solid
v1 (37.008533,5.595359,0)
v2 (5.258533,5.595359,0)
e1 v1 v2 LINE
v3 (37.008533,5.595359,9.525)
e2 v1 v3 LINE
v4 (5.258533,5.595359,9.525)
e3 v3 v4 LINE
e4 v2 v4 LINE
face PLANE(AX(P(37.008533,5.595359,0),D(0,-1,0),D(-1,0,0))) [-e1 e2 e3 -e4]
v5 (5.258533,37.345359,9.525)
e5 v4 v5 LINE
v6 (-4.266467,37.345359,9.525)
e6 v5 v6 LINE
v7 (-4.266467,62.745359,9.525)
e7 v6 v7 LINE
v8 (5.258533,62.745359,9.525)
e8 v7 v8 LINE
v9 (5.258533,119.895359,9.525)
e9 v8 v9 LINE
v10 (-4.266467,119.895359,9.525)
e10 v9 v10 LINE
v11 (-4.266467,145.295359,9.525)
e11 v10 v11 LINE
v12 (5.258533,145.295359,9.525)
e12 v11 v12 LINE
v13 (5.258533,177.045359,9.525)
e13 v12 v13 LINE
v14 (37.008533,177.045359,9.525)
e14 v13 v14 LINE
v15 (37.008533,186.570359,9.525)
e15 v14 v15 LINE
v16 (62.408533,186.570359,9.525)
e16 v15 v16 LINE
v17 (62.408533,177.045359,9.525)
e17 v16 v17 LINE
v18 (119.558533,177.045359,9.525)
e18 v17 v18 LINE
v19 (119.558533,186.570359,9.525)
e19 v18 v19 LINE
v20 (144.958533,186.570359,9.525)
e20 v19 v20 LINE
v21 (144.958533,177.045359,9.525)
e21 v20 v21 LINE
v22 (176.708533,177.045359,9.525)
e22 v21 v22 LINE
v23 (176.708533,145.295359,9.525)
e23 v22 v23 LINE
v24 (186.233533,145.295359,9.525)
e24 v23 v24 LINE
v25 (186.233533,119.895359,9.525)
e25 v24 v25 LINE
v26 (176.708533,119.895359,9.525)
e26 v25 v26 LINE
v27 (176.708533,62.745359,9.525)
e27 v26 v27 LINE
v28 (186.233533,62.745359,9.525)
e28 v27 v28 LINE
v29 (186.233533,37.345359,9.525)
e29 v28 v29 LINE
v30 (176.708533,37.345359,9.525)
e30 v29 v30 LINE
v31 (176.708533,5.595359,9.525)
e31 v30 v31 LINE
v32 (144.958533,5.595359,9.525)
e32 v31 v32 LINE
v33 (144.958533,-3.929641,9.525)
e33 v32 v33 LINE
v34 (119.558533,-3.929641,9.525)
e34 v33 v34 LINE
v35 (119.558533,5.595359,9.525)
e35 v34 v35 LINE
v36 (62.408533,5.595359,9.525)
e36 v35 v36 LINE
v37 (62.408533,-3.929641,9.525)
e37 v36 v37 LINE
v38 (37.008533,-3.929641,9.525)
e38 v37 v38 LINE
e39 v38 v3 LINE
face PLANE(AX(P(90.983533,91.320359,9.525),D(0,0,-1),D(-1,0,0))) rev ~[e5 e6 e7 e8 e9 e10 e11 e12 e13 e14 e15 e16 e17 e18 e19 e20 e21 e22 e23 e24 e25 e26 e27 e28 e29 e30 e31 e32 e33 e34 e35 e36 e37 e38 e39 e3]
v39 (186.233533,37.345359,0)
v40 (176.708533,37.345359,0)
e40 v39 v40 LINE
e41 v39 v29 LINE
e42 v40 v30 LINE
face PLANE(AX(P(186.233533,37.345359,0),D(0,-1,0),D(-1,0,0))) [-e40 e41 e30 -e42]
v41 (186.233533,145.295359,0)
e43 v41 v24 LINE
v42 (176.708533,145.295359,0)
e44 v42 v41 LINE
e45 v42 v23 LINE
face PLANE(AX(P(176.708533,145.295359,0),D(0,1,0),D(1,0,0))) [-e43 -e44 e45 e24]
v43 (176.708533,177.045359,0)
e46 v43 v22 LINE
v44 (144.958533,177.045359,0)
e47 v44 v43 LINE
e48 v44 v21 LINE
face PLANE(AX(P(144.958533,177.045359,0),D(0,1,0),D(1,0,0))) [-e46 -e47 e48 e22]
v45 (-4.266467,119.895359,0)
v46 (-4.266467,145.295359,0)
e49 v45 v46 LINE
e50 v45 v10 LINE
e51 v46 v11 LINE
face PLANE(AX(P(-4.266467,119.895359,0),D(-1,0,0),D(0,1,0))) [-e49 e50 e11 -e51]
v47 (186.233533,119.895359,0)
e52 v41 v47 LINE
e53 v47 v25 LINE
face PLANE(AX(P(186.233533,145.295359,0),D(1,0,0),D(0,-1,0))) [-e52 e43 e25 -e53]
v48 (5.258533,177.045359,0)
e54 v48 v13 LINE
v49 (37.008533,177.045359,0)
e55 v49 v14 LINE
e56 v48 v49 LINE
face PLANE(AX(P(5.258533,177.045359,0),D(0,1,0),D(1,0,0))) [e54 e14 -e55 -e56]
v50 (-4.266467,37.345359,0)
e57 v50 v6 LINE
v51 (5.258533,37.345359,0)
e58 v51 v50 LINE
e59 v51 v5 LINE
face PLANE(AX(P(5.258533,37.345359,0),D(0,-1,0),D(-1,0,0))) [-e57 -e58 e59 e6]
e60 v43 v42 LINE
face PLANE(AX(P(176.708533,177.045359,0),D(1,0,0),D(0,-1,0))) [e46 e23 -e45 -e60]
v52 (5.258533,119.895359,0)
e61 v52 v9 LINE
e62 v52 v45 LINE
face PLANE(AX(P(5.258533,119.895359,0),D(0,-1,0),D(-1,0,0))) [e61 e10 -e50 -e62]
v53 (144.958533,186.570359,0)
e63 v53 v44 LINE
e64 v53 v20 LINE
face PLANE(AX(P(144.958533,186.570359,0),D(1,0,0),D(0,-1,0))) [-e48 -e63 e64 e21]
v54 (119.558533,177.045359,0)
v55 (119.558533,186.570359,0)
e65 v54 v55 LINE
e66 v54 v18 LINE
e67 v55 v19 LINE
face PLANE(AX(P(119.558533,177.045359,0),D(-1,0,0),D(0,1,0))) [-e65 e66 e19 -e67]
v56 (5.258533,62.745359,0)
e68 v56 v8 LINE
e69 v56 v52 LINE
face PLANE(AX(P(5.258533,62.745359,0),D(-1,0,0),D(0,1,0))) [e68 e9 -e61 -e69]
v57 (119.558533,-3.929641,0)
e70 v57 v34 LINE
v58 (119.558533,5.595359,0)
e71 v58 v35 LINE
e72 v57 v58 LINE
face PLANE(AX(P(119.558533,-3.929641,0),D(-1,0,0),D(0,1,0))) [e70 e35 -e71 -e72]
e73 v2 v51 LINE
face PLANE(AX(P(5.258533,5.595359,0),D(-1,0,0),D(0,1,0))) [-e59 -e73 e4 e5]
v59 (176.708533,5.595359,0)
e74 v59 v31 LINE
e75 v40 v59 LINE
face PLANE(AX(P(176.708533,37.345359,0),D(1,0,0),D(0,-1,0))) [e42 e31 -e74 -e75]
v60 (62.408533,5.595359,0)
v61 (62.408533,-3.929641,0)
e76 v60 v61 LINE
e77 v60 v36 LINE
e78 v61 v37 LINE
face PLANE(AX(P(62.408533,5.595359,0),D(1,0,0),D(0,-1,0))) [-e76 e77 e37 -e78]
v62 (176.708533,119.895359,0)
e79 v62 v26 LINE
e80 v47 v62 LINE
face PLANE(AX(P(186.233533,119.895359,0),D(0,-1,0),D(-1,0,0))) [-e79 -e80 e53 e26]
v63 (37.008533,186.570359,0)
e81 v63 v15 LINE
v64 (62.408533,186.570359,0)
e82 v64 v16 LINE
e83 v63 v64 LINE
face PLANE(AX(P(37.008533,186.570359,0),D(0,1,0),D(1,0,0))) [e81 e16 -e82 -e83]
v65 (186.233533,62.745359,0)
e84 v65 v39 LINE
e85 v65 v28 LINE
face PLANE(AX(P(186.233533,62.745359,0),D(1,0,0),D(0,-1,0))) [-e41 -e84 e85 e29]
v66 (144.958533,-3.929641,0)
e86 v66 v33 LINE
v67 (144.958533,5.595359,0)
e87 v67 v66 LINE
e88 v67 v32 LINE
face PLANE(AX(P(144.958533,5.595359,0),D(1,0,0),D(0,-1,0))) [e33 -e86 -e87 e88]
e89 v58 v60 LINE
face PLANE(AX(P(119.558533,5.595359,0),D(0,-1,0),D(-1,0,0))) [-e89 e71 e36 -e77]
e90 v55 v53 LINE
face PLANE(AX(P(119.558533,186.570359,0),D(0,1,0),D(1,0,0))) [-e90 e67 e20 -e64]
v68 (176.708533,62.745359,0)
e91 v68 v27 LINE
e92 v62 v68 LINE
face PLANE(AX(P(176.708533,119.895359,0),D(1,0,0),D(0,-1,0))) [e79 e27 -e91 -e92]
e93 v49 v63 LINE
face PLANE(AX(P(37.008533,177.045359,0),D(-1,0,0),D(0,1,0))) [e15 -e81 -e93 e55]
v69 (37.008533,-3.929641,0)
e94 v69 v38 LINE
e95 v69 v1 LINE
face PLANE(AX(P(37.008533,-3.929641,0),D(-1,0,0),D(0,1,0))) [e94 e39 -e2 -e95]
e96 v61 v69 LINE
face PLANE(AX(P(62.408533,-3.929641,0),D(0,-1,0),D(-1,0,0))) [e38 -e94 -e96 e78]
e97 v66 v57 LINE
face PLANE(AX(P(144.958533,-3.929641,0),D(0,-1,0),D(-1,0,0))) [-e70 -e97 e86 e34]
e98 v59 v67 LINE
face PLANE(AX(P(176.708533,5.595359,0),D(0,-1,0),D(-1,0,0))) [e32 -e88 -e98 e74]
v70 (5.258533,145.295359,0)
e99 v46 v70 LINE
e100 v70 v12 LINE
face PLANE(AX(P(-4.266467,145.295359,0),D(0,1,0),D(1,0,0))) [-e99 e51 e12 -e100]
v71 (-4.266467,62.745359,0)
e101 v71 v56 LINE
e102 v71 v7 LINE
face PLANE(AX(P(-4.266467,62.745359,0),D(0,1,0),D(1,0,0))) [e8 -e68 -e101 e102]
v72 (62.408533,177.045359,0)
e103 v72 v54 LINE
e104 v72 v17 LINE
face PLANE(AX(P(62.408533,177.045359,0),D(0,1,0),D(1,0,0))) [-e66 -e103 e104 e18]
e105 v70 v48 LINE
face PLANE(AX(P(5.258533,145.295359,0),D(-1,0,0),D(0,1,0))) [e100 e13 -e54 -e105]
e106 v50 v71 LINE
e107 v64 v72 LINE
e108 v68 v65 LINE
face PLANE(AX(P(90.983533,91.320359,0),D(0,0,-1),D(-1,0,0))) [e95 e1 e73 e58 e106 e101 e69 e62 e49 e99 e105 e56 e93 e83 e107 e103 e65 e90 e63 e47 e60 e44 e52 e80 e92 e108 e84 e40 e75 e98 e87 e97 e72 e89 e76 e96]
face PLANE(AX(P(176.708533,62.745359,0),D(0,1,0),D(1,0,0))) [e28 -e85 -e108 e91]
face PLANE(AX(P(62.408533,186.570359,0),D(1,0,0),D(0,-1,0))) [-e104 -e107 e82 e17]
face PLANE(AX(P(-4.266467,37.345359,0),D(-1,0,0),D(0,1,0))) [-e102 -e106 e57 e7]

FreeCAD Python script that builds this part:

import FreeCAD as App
import Part
import Sketcher
from FreeCAD import Vector
Q = App.Units.Quantity

doc = App.newDocument("Part")
body = doc.addObject("PartDesign::Body", "Body")

# Sketch on XY plane
sketch1 = body.newObject("Sketcher::SketchObject", "Sketch")
sketch1.AttachmentSupport = (doc.getObject("XY_Plane"), [""])
sketch1.MapMode = "FlatFace"
sketch1.addGeometry([
    Part.LineSegment(Vector(144.958533, 186.570359, 0), Vector(119.558533, 186.570359, 0)),  # 0
    Part.LineSegment(Vector(119.558533, 186.570359, 0), Vector(119.558533, 177.045359, 0)),  # 1
    Part.LineSegment(Vector(119.558533, 177.045359, 0), Vector(62.408533, 177.045359, 0)),  # 2
    Part.LineSegment(Vector(62.408533, 177.045359, 0), Vector(62.408533, 186.570359, 0)),  # 3
    Part.LineSegment(Vector(62.408533, 186.570359, 0), Vector(37.008533, 186.570359, 0)),  # 4
    Part.LineSegment(Vector(37.008533, 186.570359, 0), Vector(37.008533, 177.045359, 0)),  # 5
    Part.LineSegment(Vector(37.008533, 177.045359, 0), Vector(5.258533, 177.045359, 0)),  # 6
    Part.LineSegment(Vector(5.258533, 177.045359, 0), Vector(5.258533, 145.295359, 0)),  # 7
    Part.LineSegment(Vector(5.258533, 145.295359, 0), Vector(-4.266467, 145.295359, 0)),  # 8
    Part.LineSegment(Vector(-4.266467, 145.295359, 0), Vector(-4.266467, 119.895359, 0)),  # 9
    Part.LineSegment(Vector(-4.266467, 119.895359, 0), Vector(5.258533, 119.895359, 0)),  # 10
    Part.LineSegment(Vector(5.258533, 119.895359, 0), Vector(5.258533, 62.745359, 0)),  # 11
    Part.LineSegment(Vector(5.258533, 62.745359, 0), Vector(-4.266467, 62.745359, 0)),  # 12
    Part.LineSegment(Vector(-4.266467, 62.745359, 0), Vector(-4.266467, 37.345359, 0)),  # 13
    Part.LineSegment(Vector(-4.266467, 37.345359, 0), Vector(5.258533, 37.345359, 0)),  # 14
    Part.LineSegment(Vector(5.258533, 37.345359, 0), Vector(5.258533, 5.595359, 0)),  # 15
    Part.LineSegment(Vector(5.258533, 5.595359, 0), Vector(37.008533, 5.595359, 0)),  # 16
    Part.LineSegment(Vector(37.008533, 5.595359, 0), Vector(37.008533, -3.929641, 0)),  # 17
    Part.LineSegment(Vector(37.008533, -3.929641, 0), Vector(62.408533, -3.929641, 0)),  # 18
    Part.LineSegment(Vector(62.408533, -3.929641, 0), Vector(62.408533, 5.595359, 0)),  # 19
    Part.LineSegment(Vector(62.408533, 5.595359, 0), Vector(119.558533, 5.595359, 0)),  # 20
    Part.LineSegment(Vector(119.558533, 5.595359, 0), Vector(119.558533, -3.929641, 0)),  # 21
    Part.LineSegment(Vector(119.558533, -3.929641, 0), Vector(144.958533, -3.929641, 0)),  # 22
    Part.LineSegment(Vector(144.958533, -3.929641, 0), Vector(144.958533, 5.595359, 0)),  # 23
    Part.LineSegment(Vector(144.958533, 5.595359, 0), Vector(176.708533, 5.595359, 0)),  # 24
    Part.LineSegment(Vector(176.708533, 5.595359, 0), Vector(176.708533, 37.345359, 0)),  # 25
    Part.LineSegment(Vector(176.708533, 37.345359, 0), Vector(186.233533, 37.345359, 0)),  # 26
    Part.LineSegment(Vector(186.233533, 37.345359, 0), Vector(186.233533, 62.745359, 0)),  # 27
    Part.LineSegment(Vector(186.233533, 62.745359, 0), Vector(176.708533, 62.745359, 0)),  # 28
    Part.LineSegment(Vector(176.708533, 62.745359, 0), Vector(176.708533, 119.895359, 0)),  # 29
    Part.LineSegment(Vector(176.708533, 119.895359, 0), Vector(186.233533, 119.895359, 0)),  # 30
    Part.LineSegment(Vector(186.233533, 119.895359, 0), Vector(186.233533, 145.295359, 0)),  # 31
    Part.LineSegment(Vector(186.233533, 145.295359, 0), Vector(176.708533, 145.295359, 0)),  # 32
    Part.LineSegment(Vector(176.708533, 145.295359, 0), Vector(176.708533, 177.045359, 0)),  # 33
    Part.LineSegment(Vector(176.708533, 177.045359, 0), Vector(144.958533, 177.045359, 0)),  # 34
    Part.LineSegment(Vector(144.958533, 177.045359, 0), Vector(144.958533, 186.570359, 0)),  # 35
], False)
sketch1.addConstraint([
    Sketcher.Constraint("Coincident", 0, 2, 1, 1),
    Sketcher.Constraint("Coincident", 1, 2, 2, 1),
    Sketcher.Constraint("Coincident", 2, 2, 3, 1),
    Sketcher.Constraint("Coincident", 3, 2, 4, 1),
    Sketcher.Constraint("Coincident", 4, 2, 5, 1),
    Sketcher.Constraint("Coincident", 5, 2, 6, 1),
    Sketcher.Constraint("Coincident", 6, 2, 7, 1),
    Sketcher.Constraint("Coincident", 7, 2, 8, 1),
    Sketcher.Constraint("Coincident", 8, 2, 9, 1),
    Sketcher.Constraint("Coincident", 9, 2, 10, 1),
    Sketcher.Constraint("Coincident", 10, 2, 11, 1),
    Sketcher.Constraint("Coincident", 11, 2, 12, 1),
    Sketcher.Constraint("Coincident", 12, 2, 13, 1),
    Sketcher.Constraint("Coincident", 13, 2, 14, 1),
    Sketcher.Constraint("Coincident", 14, 2, 15, 1),
    Sketcher.Constraint("Coincident", 15, 2, 16, 1),
    Sketcher.Constraint("Coincident", 16, 2, 17, 1),
    Sketcher.Constraint("Coincident", 17, 2, 18, 1),
    Sketcher.Constraint("Coincident", 18, 2, 19, 1),
    Sketcher.Constraint("Coincident", 19, 2, 20, 1),
    Sketcher.Constraint("Coincident", 20, 2, 21, 1),
    Sketcher.Constraint("Coincident", 21, 2, 22, 1),
    Sketcher.Constraint("Coincident", 22, 2, 23, 1),
    Sketcher.Constraint("Coincident", 23, 2, 24, 1),
    Sketcher.Constraint("Coincident", 24, 2, 25, 1),
    Sketcher.Constraint("Coincident", 25, 2, 26, 1),
    Sketcher.Constraint("Coincident", 26, 2, 27, 1),
    Sketcher.Constraint("Coincident", 27, 2, 28, 1),
    Sketcher.Constraint("Coincident", 28, 2, 29, 1),
    Sketcher.Constraint("Coincident", 29, 2, 30, 1),
    Sketcher.Constraint("Coincident", 30, 2, 31, 1),
    Sketcher.Constraint("Coincident", 31, 2, 32, 1),
    Sketcher.Constraint("Coincident", 32, 2, 33, 1),
    Sketcher.Constraint("Coincident", 33, 2, 34, 1),
    Sketcher.Constraint("Coincident", 34, 2, 35, 1),
    Sketcher.Constraint("Coincident", 35, 2, 0, 1),
    Sketcher.Constraint("Horizontal", 0),
    Sketcher.Constraint("Vertical", 1),
    Sketcher.Constraint("Horizontal", 2),
    Sketcher.Constraint("Vertical", 3),
    Sketcher.Constraint("Horizontal", 4),
    Sketcher.Constraint("Vertical", 5),
    Sketcher.Constraint("Horizontal", 6),
    Sketcher.Constraint("Vertical", 7),
    Sketcher.Constraint("Horizontal", 8),
    Sketcher.Constraint("Vertical", 9),
    Sketcher.Constraint("Horizontal", 10),
    Sketcher.Constraint("Vertical", 11),
    Sketcher.Constraint("Horizontal", 12),
    Sketcher.Constraint("Vertical", 13),
    Sketcher.Constraint("Horizontal", 14),
    Sketcher.Constraint("Vertical", 15),
    Sketcher.Constraint("Horizontal", 16),
    Sketcher.Constraint("Vertical", 17),
    Sketcher.Constraint("Horizontal", 18),
    Sketcher.Constraint("Vertical", 19),
    Sketcher.Constraint("Horizontal", 20),
    Sketcher.Constraint("Vertical", 21),
    Sketcher.Constraint("Horizontal", 22),
    Sketcher.Constraint("Vertical", 23),
    Sketcher.Constraint("Horizontal", 24),
    Sketcher.Constraint("Vertical", 25),
    Sketcher.Constraint("Horizontal", 26),
    Sketcher.Constraint("Vertical", 27),
    Sketcher.Constraint("Horizontal", 28),
    Sketcher.Constraint("Vertical", 29),
    Sketcher.Constraint("Horizontal", 30),
    Sketcher.Constraint("Vertical", 31),
    Sketcher.Constraint("Horizontal", 32),
    Sketcher.Constraint("Vertical", 33),
    Sketcher.Constraint("Horizontal", 34),
    Sketcher.Constraint("Vertical", 35),
    Sketcher.Constraint("Horizontal", 0, 2, 3, 2),
    Sketcher.Constraint("Horizontal", 2, 2, 5, 2),
    Sketcher.Constraint("Horizontal", 16, 2, 19, 2),
    Sketcher.Constraint("Horizontal", 18, 2, 21, 2),
    Sketcher.Constraint("Horizontal", 20, 2, 23, 2),
    Sketcher.Constraint("Horizontal", 14, 2, 25, 2),
    Sketcher.Constraint("Horizontal", 12, 2, 27, 2),
    Sketcher.Constraint("Horizontal", 10, 2, 29, 2),
    Sketcher.Constraint("Horizontal", 8, 2, 31, 2),
    Sketcher.Constraint("Horizontal", 6, 2, 33, 2),
    Sketcher.Constraint("Vertical", 7, 2, 10, 2),
    Sketcher.Constraint("Vertical", 9, 2, 12, 2),
    Sketcher.Constraint("Vertical", 11, 2, 14, 2),
    Sketcher.Constraint("Vertical", 5, 2, 16, 2),
    Sketcher.Constraint("Vertical", 3, 2, 18, 2),
    Sketcher.Constraint("Vertical", 1, 2, 20, 2),
    Sketcher.Constraint("Vertical", 25, 2, 28, 2),
    Sketcher.Constraint("Vertical", 27, 2, 30, 2),
    Sketcher.Constraint("Vertical", 29, 2, 32, 2),
    Sketcher.Constraint("Vertical", 23, 2, 34, 2),
    Sketcher.Constraint("Equal", 0, 4),
    Sketcher.Constraint("Equal", 16, 24),
    Sketcher.Constraint("Equal", 14, 26),
    Sketcher.Constraint("Equal", 32, 1),
    Sketcher.Constraint("Equal", 34, 7),
    Sketcher.Constraint("Equal", 22, 9),
    Sketcher.Constraint("Equal", 20, 11),
    Sketcher.Constraint("Equal", 9, 13),
    Sketcher.Constraint("Equal", 7, 15),
    Sketcher.Constraint("Equal", 5, 17),
    Sketcher.Constraint("DistanceX", 0, 2, 0, 1, Q("1 in")),
    Sketcher.Constraint("DistanceX", 2, 2, 2, 1, Q("2.25 in")),
    Sketcher.Constraint("DistanceX", 6, 2, 6, 1, Q("1.25 in")),
    Sketcher.Constraint("DistanceX", 8, 2, 8, 1, Q("0.375 in")),
    Sketcher.Constraint("DistanceY", -1, 1, 0, 2, Q("186.570359 mm")),
    Sketcher.Constraint("DistanceX", -1, 1, 0, 2, Q("119.558533 mm")),
])
pad1 = body.newObject("PartDesign::Pad", "Pad")
pad1.Profile = sketch1
pad1.Length = Q("0.375 in")

doc.recompute()
